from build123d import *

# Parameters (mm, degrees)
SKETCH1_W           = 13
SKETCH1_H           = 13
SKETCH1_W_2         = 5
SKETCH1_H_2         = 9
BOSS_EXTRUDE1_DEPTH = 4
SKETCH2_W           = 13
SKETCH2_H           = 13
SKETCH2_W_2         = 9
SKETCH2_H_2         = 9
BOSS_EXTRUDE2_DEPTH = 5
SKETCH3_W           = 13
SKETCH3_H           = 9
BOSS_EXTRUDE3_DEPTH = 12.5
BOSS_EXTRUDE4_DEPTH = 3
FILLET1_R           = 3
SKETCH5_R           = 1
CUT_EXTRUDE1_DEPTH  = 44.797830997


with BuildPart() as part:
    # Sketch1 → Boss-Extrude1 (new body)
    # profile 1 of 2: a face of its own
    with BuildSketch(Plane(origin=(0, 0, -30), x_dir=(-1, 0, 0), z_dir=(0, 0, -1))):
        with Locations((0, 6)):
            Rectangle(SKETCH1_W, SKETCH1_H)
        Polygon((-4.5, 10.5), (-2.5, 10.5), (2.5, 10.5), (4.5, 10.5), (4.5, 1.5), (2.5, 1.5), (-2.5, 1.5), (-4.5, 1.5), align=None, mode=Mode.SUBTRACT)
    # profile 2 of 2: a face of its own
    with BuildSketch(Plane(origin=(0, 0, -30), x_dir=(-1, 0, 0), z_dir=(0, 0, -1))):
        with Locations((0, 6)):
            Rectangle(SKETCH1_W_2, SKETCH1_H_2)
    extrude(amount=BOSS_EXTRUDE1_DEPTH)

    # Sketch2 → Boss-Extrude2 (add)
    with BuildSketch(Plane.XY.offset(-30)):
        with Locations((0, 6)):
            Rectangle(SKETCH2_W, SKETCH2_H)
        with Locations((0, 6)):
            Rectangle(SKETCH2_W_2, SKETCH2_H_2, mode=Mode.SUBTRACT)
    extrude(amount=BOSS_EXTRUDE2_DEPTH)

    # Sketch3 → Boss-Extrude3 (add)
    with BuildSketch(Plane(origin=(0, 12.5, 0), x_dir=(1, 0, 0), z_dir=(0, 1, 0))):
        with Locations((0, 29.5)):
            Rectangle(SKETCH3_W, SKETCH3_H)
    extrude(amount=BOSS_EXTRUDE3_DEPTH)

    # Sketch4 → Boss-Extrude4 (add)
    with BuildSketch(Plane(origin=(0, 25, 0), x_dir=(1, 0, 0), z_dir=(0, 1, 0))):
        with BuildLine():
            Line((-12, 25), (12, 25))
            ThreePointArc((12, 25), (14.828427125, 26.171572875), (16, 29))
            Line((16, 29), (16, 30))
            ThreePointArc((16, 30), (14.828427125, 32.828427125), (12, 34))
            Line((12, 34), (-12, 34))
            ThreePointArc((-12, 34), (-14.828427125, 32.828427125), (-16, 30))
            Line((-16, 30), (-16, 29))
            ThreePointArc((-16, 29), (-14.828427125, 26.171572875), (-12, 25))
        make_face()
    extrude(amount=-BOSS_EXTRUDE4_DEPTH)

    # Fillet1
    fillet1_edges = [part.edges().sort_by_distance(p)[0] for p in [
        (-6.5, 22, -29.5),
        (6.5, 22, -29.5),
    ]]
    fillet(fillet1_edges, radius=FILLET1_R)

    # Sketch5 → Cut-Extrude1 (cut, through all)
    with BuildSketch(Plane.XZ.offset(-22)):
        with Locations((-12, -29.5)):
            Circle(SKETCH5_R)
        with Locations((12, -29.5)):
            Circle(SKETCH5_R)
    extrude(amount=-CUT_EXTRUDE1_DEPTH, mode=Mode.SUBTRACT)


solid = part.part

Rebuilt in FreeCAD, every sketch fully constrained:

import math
import FreeCAD as App
import Part
import Sketcher
from FreeCAD import Vector
Q = App.Units.Quantity


def edges_at(feature, points):
    """Names of the edges that pass closest to the given points."""
    edges = feature.Shape.Edges
    near = lambda p: min(range(len(edges)), key=lambda i: edges[i].distToShape(Part.Vertex(*p))[0])
    return sorted({f"Edge{near(p) + 1}" for p in points})


def add_polygon(sketch, points):
    """Adds a closed chain of lines whose ends are joined by coincident constraints."""
    first, n = sketch.GeometryCount, len(points)
    for a, b in zip(points, points[1:] + points[:1]):
        sketch.addGeometry(Part.LineSegment(App.Vector(*a, 0), App.Vector(*b, 0)), False)
    for i in range(n):
        sketch.addConstraint(Sketcher.Constraint("Coincident", first + i, 2, first + (i + 1) % n, 1))

doc = App.newDocument("Part")
body = doc.addObject("PartDesign::Body", "Body")

# Sketch on XY plane
sketch1 = body.newObject("Sketcher::SketchObject", "Sketch")
sketch1.AttachmentSupport = (doc.getObject("XY_Plane"), [""])
sketch1.MapMode = "FlatFace"
sketch1.AttachmentOffset = App.Placement(Vector(0, 0, -30), App.Rotation())
add_polygon(sketch1, [(6.5, 12.5), (6.5, -0.5), (-6.5, -0.5), (-6.5, 12.5)])  # lines 0-3
add_polygon(sketch1, [(4.5, 1.5), (4.5, 10.5), (2.5, 10.5), (2.5, 1.5)])  # lines 4-7
add_polygon(sketch1, [(-2.5, 10.5), (-4.5, 10.5), (-4.5, 1.5), (-2.5, 1.5)])  # lines 8-11
sketch1.addConstraint(Sketcher.Constraint("Vertical", 0))
sketch1.addConstraint(Sketcher.Constraint("Horizontal", 1))
sketch1.addConstraint(Sketcher.Constraint("Vertical", 2))
sketch1.addConstraint(Sketcher.Constraint("Horizontal", 3))
sketch1.addConstraint(Sketcher.Constraint("Vertical", 4))
sketch1.addConstraint(Sketcher.Constraint("Horizontal", 5))
sketch1.addConstraint(Sketcher.Constraint("Vertical", 6))
sketch1.addConstraint(Sketcher.Constraint("Horizontal", 7))
sketch1.addConstraint(Sketcher.Constraint("Horizontal", 8))
sketch1.addConstraint(Sketcher.Constraint("Vertical", 9))
sketch1.addConstraint(Sketcher.Constraint("Horizontal", 10))
sketch1.addConstraint(Sketcher.Constraint("Vertical", 11))
sketch1.addConstraint(Sketcher.Constraint("Symmetric", 4, 2, 8, 2, -2))
sketch1.addConstraint(Sketcher.Constraint("Symmetric", 6, 2, 10, 2, -2))
sketch1.addConstraint(Sketcher.Constraint("Equal", 3, 0))
sketch1.addConstraint(Sketcher.Constraint("DistanceX", 1, 2, 1, 1, Q("13 mm")))
sketch1.addConstraint(Sketcher.Constraint("DistanceX", 5, 2, 5, 1, Q("2 mm")))
sketch1.addConstraint(Sketcher.Constraint("DistanceY", 4, 1, 4, 2, Q("9 mm")))
sketch1.addConstraint(Sketcher.Constraint("DistanceX", 4, 2, 3, 2, Q("2 mm")))
sketch1.addConstraint(Sketcher.Constraint("DistanceY", 4, 2, 3, 2, Q("2 mm")))
sketch1.addConstraint(Sketcher.Constraint("DistanceX", 2, 2, 8, 2, Q("2 mm")))
sketch1.addConstraint(Sketcher.Constraint("DistanceY", 0, 2, -1, 1, Q("0.5 mm")))
pad1 = body.newObject("PartDesign::Pad", "Pad")
pad1.Profile = sketch1
pad1.Length = 4
pad1.Reversed = True

# Sketch on XY plane
sketch2 = body.newObject("Sketcher::SketchObject", "Sketch001")
sketch2.AttachmentSupport = (doc.getObject("XY_Plane"), [""])
sketch2.MapMode = "FlatFace"
sketch2.AttachmentOffset = App.Placement(Vector(0, 0, -30), App.Rotation())
add_polygon(sketch2, [(-6, 12), (-6, 0), (6, 0), (6, 12)])  # lines 0-3
add_polygon(sketch2, [(4, 2), (-4, 2), (-4, 10), (4, 10)])  # lines 4-7
sketch2.addConstraint(Sketcher.Constraint("Vertical", 0))
sketch2.addConstraint(Sketcher.Constraint("Horizontal", 1))
sketch2.addConstraint(Sketcher.Constraint("Vertical", 2))
sketch2.addConstraint(Sketcher.Constraint("Horizontal", 3))
sketch2.addConstraint(Sketcher.Constraint("Horizontal", 4))
sketch2.addConstraint(Sketcher.Constraint("Vertical", 5))
sketch2.addConstraint(Sketcher.Constraint("Horizontal", 6))
sketch2.addConstraint(Sketcher.Constraint("Vertical", 7))
sketch2.addConstraint(Sketcher.Constraint("Equal", 3, 0))
sketch2.addConstraint(Sketcher.Constraint("Equal", 6, 5))
sketch2.addConstraint(Sketcher.Constraint("DistanceX", 1, 1, 1, 2, Q("13 mm")))
sketch2.addConstraint(Sketcher.Constraint("DistanceX", 4, 2, 4, 1, Q("9 mm")))
sketch2.addConstraint(Sketcher.Constraint("DistanceX", 0, 2, 4, 2, Q("2 mm")))
sketch2.addConstraint(Sketcher.Constraint("DistanceY", 0, 2, 4, 2, Q("2 mm")))
sketch2.addConstraint(Sketcher.Constraint("DistanceX", 0, 2, -1, 1, Q("6.5 mm")))
sketch2.addConstraint(Sketcher.Constraint("DistanceY", 0, 2, -1, 1, Q("0.5 mm")))
pad2 = body.newObject("PartDesign::Pad", "Pad001")
pad2.Profile = sketch2
pad2.Length = 5

# Sketch on XZ plane
sketch3 = body.newObject("Sketcher::SketchObject", "Sketch002")
sketch3.AttachmentSupport = (doc.getObject("XZ_Plane"), [""])
sketch3.MapMode = "FlatFace"
sketch3.AttachmentOffset = App.Placement(Vector(0, 0, -12.5), App.Rotation())
add_polygon(sketch3, [(-6, -34), (-6, -25), (6, -25), (6, -34)])  # lines 0-3
sketch3.addConstraint(Sketcher.Constraint("Vertical", 0))
sketch3.addConstraint(Sketcher.Constraint("Horizontal", 1))
sketch3.addConstraint(Sketcher.Constraint("Vertical", 2))
sketch3.addConstraint(Sketcher.Constraint("Horizontal", 3))
sketch3.addConstraint(Sketcher.Constraint("DistanceX", 1, 1, 1, 2, Q("13 mm")))
sketch3.addConstraint(Sketcher.Constraint("DistanceY", 0, 1, 0, 2, Q("9 mm")))
sketch3.addConstraint(Sketcher.Constraint("DistanceY", 0, 2, -1, 1, Q("25 mm")))
sketch3.addConstraint(Sketcher.Constraint("DistanceX", 0, 2, -1, 1, Q("6.5 mm")))
pad3 = body.newObject("PartDesign::Pad", "Pad002")
pad3.Profile = sketch3
pad3.Length = 12.5
pad3.Reversed = True

# Sketch on XZ plane
sketch4 = body.newObject("Sketcher::SketchObject", "Sketch003")
sketch4.AttachmentSupport = (doc.getObject("XZ_Plane"), [""])
sketch4.MapMode = "FlatFace"
sketch4.AttachmentOffset = App.Placement(Vector(0, 0, -25), App.Rotation())
sketch4.addGeometry(Part.LineSegment(Vector(-12, -25, 0), Vector(12, -25, 0)), False)
sketch4.addGeometry(Part.ArcOfCircle(Part.Circle(Vector(12, -29, 0), Vector(0, 0, 1), 4), math.radians(0), math.radians(90)), False)
sketch4.addGeometry(Part.LineSegment(Vector(16, -29, 0), Vector(16, -30, 0)), False)
sketch4.addGeometry(Part.ArcOfCircle(Part.Circle(Vector(12, -30, 0), Vector(0, 0, 1), 4), math.radians(-90), math.radians(0)), False)
sketch4.addGeometry(Part.LineSegment(Vector(12, -34, 0), Vector(-12, -34, 0)), False)
sketch4.addGeometry(Part.ArcOfCircle(Part.Circle(Vector(-12, -30, 0), Vector(0, 0, 1), 4), math.radians(180), math.radians(270)), False)
sketch4.addGeometry(Part.LineSegment(Vector(-16, -30, 0), Vector(-16, -29, 0)), False)
sketch4.addGeometry(Part.ArcOfCircle(Part.Circle(Vector(-12, -29, 0), Vector(0, 0, 1), 4), math.radians(90), math.radians(180)), False)
sketch4.addConstraint(Sketcher.Constraint("Tangent", 0, 2, 1, 2))
sketch4.addConstraint(Sketcher.Constraint("Tangent", 1, 1, 2, 1))
sketch4.addConstraint(Sketcher.Constraint("Tangent", 2, 2, 3, 2))
sketch4.addConstraint(Sketcher.Constraint("Tangent", 3, 1, 4, 1))
sketch4.addConstraint(Sketcher.Constraint("Tangent", 4, 2, 5, 2))
sketch4.addConstraint(Sketcher.Constraint("Tangent", 5, 1, 6, 1))
sketch4.addConstraint(Sketcher.Constraint("Tangent", 6, 2, 7, 2))
sketch4.addConstraint(Sketcher.Constraint("Tangent", 7, 1, 0, 1))
sketch4.addConstraint(Sketcher.Constraint("Horizontal", 0))
sketch4.addConstraint(Sketcher.Constraint("Vertical", 2))
sketch4.addConstraint(Sketcher.Constraint("Horizontal", 4))
sketch4.addConstraint(Sketcher.Constraint("Vertical", 6))
sketch4.addConstraint(Sketcher.Constraint("Equal", 1, 3))
sketch4.addConstraint(Sketcher.Constraint("Equal", 3, 5))
sketch4.addConstraint(Sketcher.Constraint("Equal", 5, 7))
sketch4.addConstraint(Sketcher.Constraint("Radius", 1, Q("4 mm")))
sketch4.addConstraint(Sketcher.Constraint("DistanceX", 0, 1, 0, 2, Q("24 mm")))
sketch4.addConstraint(Sketcher.Constraint("DistanceY", 2, 2, 2, 1, Q("1 mm")))
sketch4.addConstraint(Sketcher.Constraint("DistanceX", -1, 1, 1, 3, Q("12 mm")))
sketch4.addConstraint(Sketcher.Constraint("DistanceY", 1, 3, -1, 1, Q("29 mm")))
pad4 = body.newObject("PartDesign::Pad", "Pad003")
pad4.Profile = sketch4
pad4.Length = 3
doc.recompute()

fillet = body.newObject("PartDesign::Fillet", "Fillet")
fillet.Base = (pad4, edges_at(pad4, [(-6.5, 22, -29.5), (6.5, 22, -29.5)]))
fillet.Radius = 3

# Sketch on XZ plane
sketch5 = body.newObject("Sketcher::SketchObject", "Sketch004")
sketch5.AttachmentSupport = (doc.getObject("XZ_Plane"), [""])
sketch5.MapMode = "FlatFace"
sketch5.AttachmentOffset = App.Placement(Vector(0, 0, -22), App.Rotation())
sketch5.addGeometry(Part.Circle(Vector(-12, -29.5, 0), Vector(0, 0, 1), 1), False)
sketch5.addGeometry(Part.Circle(Vector(12, -29.5, 0), Vector(0, 0, 1), 1), False)
sketch5.addConstraint(Sketcher.Constraint("Equal", 0, 1))
sketch5.addConstraint(Sketcher.Constraint("Symmetric", 0, 3, 1, 3, -2))
sketch5.addConstraint(Sketcher.Constraint("Diameter", 0, Q("2 mm")))
sketch5.addConstraint(Sketcher.Constraint("DistanceX", 0, 3, -1, 1, Q("12 mm")))
sketch5.addConstraint(Sketcher.Constraint("DistanceY", 0, 3, -1, 1, Q("29.5 mm")))
pocket1 = body.newObject("PartDesign::Pocket", "Pocket")
pocket1.Profile = sketch5
pocket1.Type = "ThroughAll"

doc.recompute()
